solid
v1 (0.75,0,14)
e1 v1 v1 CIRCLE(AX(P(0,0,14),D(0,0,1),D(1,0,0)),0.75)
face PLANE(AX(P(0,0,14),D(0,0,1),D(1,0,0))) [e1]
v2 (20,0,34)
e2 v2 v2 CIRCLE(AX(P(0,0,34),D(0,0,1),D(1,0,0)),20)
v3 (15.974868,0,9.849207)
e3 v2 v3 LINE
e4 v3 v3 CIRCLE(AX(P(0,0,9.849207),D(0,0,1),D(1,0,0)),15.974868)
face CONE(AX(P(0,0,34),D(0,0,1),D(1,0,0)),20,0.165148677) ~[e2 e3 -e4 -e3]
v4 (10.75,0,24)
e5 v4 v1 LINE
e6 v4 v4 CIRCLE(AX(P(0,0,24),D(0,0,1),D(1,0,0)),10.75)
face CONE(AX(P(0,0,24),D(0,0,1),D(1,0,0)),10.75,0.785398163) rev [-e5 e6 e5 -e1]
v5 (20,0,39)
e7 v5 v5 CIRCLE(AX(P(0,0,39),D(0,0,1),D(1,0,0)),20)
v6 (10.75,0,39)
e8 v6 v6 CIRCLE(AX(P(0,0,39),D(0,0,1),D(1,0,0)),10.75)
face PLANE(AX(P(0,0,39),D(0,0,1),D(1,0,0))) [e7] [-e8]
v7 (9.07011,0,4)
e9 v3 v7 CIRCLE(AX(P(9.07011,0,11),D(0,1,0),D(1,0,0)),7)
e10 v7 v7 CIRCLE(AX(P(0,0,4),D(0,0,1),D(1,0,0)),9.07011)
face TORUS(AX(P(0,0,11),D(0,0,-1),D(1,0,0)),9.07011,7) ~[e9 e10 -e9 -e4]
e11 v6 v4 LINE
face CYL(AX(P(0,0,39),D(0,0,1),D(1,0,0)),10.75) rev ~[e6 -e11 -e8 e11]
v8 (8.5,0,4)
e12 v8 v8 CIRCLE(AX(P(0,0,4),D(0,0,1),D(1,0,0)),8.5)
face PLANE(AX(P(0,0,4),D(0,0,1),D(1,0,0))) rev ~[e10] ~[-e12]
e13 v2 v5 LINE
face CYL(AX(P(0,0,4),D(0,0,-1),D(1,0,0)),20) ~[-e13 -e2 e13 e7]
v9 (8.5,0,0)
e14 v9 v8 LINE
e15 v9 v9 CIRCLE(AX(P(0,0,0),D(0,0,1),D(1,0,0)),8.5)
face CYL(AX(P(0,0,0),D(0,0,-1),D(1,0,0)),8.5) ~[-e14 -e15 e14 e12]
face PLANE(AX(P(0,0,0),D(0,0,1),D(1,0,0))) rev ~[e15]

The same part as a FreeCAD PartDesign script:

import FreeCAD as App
import Part
import Sketcher
from FreeCAD import Vector
Q = App.Units.Quantity


def edges_at(feature, points):
    """Names of the edges that pass closest to the given points."""
    edges = feature.Shape.Edges
    near = lambda p: min(range(len(edges)), key=lambda i: edges[i].distToShape(Part.Vertex(*p))[0])
    return sorted({f"Edge{near(p) + 1}" for p in points})

doc = App.newDocument("Part")
params = doc.addObject("Spreadsheet::Sheet", "Params")
for row, (alias, value) in enumerate([
    ("sketch1_diameter", "17 mm"),
    ("pad1_length", "4 mm"),
    ("sketch2_diameter", "40 mm"),
    ("pad2_length", "35 mm"),
    ("chamfer_size", "30 mm"),
    ("chamfer_size2", "5 mm"),
    ("fillet_radius", "7 mm"),
    ("sketch3_diameter", "21.5 mm"),
    ("pocket1_length", "25 mm"),
    ("chamfer2_size", "10 mm"),
], start=1):
    params.set(f"A{row}", alias)
    params.set(f"B{row}", "=" + value)
    params.setAlias(f"B{row}", alias)

body = doc.addObject("PartDesign::Body", "Body")

sketch1 = body.newObject("Sketcher::SketchObject", "Sketch")
sketch1.AttachmentSupport = (doc.getObject("XY_Plane"), [""])
sketch1.MapMode = "FlatFace"
sketch1.addGeometry(Part.Circle(Vector(0, 0, 0), Vector(0, 0, 1), 8), False)
sketch1.addConstraint(Sketcher.Constraint("Coincident", 0, 3, -1, 1))
sketch1.addConstraint(Sketcher.Constraint("Diameter", 0, Q("17 mm")))
sketch1.setExpression("Constraints[1]", "Params.sketch1_diameter")
pad1 = body.newObject("PartDesign::Pad", "Pad")
pad1.Profile = sketch1
pad1.setExpression("Length", "Params.pad1_length")

sketch2 = body.newObject("Sketcher::SketchObject", "Sketch001")
sketch2.AttachmentSupport = (doc.getObject("XY_Plane"), [""])
sketch2.MapMode = "FlatFace"
sketch2.AttachmentOffset = App.Placement(Vector(0, 0, 4), App.Rotation())
sketch2.addGeometry(Part.Circle(Vector(0, 0, 0), Vector(0, 0, 1), 20), False)
sketch2.addConstraint(Sketcher.Constraint("Coincident", 0, 3, -1, 1))
sketch2.addConstraint(Sketcher.Constraint("Diameter", 0, Q("40 mm")))
sketch2.setExpression("Constraints[1]", "Params.sketch2_diameter")
pad2 = body.newObject("PartDesign::Pad", "Pad001")
pad2.Profile = sketch2
pad2.setExpression("Length", "Params.pad2_length")
doc.recompute()

chamfer = body.newObject("PartDesign::Chamfer", "Chamfer")
chamfer.Base = (pad2, edges_at(pad2, [(-20, 0, 4)]))
chamfer.ChamferType = "Two distances"
chamfer.setExpression("Size", "Params.chamfer_size")
chamfer.setExpression("Size2", "Params.chamfer_size2")
chamfer.FlipDirection = True
doc.recompute()

fillet = body.newObject("PartDesign::Fillet", "Fillet")
fillet.Base = (chamfer, edges_at(chamfer, [(-15, 0, 4)]))
fillet.setExpression("Radius", "Params.fillet_radius")

sketch3 = body.newObject("Sketcher::SketchObject", "Sketch002")
sketch3.AttachmentSupport = (doc.getObject("XY_Plane"), [""])
sketch3.MapMode = "FlatFace"
sketch3.AttachmentOffset = App.Placement(Vector(0, 0, 39), App.Rotation())
sketch3.addGeometry(Part.Circle(Vector(0, 0, 0), Vector(0, 0, 1), 11), False)
sketch3.addConstraint(Sketcher.Constraint("Coincident", 0, 3, -1, 1))
sketch3.addConstraint(Sketcher.Constraint("Diameter", 0, Q("21.5 mm")))
sketch3.setExpression("Constraints[1]", "Params.sketch3_diameter")
pocket1 = body.newObject("PartDesign::Pocket", "Pocket")
pocket1.Profile = sketch3
pocket1.setExpression("Length", "Params.pocket1_length")
doc.recompute()

chamfer2 = body.newObject("PartDesign::Chamfer", "Chamfer001")
chamfer2.Base = (pocket1, edges_at(pocket1, [(-10.75, 0, 14)]))
chamfer2.setExpression("Size", "Params.chamfer2_size")

doc.recompute()
